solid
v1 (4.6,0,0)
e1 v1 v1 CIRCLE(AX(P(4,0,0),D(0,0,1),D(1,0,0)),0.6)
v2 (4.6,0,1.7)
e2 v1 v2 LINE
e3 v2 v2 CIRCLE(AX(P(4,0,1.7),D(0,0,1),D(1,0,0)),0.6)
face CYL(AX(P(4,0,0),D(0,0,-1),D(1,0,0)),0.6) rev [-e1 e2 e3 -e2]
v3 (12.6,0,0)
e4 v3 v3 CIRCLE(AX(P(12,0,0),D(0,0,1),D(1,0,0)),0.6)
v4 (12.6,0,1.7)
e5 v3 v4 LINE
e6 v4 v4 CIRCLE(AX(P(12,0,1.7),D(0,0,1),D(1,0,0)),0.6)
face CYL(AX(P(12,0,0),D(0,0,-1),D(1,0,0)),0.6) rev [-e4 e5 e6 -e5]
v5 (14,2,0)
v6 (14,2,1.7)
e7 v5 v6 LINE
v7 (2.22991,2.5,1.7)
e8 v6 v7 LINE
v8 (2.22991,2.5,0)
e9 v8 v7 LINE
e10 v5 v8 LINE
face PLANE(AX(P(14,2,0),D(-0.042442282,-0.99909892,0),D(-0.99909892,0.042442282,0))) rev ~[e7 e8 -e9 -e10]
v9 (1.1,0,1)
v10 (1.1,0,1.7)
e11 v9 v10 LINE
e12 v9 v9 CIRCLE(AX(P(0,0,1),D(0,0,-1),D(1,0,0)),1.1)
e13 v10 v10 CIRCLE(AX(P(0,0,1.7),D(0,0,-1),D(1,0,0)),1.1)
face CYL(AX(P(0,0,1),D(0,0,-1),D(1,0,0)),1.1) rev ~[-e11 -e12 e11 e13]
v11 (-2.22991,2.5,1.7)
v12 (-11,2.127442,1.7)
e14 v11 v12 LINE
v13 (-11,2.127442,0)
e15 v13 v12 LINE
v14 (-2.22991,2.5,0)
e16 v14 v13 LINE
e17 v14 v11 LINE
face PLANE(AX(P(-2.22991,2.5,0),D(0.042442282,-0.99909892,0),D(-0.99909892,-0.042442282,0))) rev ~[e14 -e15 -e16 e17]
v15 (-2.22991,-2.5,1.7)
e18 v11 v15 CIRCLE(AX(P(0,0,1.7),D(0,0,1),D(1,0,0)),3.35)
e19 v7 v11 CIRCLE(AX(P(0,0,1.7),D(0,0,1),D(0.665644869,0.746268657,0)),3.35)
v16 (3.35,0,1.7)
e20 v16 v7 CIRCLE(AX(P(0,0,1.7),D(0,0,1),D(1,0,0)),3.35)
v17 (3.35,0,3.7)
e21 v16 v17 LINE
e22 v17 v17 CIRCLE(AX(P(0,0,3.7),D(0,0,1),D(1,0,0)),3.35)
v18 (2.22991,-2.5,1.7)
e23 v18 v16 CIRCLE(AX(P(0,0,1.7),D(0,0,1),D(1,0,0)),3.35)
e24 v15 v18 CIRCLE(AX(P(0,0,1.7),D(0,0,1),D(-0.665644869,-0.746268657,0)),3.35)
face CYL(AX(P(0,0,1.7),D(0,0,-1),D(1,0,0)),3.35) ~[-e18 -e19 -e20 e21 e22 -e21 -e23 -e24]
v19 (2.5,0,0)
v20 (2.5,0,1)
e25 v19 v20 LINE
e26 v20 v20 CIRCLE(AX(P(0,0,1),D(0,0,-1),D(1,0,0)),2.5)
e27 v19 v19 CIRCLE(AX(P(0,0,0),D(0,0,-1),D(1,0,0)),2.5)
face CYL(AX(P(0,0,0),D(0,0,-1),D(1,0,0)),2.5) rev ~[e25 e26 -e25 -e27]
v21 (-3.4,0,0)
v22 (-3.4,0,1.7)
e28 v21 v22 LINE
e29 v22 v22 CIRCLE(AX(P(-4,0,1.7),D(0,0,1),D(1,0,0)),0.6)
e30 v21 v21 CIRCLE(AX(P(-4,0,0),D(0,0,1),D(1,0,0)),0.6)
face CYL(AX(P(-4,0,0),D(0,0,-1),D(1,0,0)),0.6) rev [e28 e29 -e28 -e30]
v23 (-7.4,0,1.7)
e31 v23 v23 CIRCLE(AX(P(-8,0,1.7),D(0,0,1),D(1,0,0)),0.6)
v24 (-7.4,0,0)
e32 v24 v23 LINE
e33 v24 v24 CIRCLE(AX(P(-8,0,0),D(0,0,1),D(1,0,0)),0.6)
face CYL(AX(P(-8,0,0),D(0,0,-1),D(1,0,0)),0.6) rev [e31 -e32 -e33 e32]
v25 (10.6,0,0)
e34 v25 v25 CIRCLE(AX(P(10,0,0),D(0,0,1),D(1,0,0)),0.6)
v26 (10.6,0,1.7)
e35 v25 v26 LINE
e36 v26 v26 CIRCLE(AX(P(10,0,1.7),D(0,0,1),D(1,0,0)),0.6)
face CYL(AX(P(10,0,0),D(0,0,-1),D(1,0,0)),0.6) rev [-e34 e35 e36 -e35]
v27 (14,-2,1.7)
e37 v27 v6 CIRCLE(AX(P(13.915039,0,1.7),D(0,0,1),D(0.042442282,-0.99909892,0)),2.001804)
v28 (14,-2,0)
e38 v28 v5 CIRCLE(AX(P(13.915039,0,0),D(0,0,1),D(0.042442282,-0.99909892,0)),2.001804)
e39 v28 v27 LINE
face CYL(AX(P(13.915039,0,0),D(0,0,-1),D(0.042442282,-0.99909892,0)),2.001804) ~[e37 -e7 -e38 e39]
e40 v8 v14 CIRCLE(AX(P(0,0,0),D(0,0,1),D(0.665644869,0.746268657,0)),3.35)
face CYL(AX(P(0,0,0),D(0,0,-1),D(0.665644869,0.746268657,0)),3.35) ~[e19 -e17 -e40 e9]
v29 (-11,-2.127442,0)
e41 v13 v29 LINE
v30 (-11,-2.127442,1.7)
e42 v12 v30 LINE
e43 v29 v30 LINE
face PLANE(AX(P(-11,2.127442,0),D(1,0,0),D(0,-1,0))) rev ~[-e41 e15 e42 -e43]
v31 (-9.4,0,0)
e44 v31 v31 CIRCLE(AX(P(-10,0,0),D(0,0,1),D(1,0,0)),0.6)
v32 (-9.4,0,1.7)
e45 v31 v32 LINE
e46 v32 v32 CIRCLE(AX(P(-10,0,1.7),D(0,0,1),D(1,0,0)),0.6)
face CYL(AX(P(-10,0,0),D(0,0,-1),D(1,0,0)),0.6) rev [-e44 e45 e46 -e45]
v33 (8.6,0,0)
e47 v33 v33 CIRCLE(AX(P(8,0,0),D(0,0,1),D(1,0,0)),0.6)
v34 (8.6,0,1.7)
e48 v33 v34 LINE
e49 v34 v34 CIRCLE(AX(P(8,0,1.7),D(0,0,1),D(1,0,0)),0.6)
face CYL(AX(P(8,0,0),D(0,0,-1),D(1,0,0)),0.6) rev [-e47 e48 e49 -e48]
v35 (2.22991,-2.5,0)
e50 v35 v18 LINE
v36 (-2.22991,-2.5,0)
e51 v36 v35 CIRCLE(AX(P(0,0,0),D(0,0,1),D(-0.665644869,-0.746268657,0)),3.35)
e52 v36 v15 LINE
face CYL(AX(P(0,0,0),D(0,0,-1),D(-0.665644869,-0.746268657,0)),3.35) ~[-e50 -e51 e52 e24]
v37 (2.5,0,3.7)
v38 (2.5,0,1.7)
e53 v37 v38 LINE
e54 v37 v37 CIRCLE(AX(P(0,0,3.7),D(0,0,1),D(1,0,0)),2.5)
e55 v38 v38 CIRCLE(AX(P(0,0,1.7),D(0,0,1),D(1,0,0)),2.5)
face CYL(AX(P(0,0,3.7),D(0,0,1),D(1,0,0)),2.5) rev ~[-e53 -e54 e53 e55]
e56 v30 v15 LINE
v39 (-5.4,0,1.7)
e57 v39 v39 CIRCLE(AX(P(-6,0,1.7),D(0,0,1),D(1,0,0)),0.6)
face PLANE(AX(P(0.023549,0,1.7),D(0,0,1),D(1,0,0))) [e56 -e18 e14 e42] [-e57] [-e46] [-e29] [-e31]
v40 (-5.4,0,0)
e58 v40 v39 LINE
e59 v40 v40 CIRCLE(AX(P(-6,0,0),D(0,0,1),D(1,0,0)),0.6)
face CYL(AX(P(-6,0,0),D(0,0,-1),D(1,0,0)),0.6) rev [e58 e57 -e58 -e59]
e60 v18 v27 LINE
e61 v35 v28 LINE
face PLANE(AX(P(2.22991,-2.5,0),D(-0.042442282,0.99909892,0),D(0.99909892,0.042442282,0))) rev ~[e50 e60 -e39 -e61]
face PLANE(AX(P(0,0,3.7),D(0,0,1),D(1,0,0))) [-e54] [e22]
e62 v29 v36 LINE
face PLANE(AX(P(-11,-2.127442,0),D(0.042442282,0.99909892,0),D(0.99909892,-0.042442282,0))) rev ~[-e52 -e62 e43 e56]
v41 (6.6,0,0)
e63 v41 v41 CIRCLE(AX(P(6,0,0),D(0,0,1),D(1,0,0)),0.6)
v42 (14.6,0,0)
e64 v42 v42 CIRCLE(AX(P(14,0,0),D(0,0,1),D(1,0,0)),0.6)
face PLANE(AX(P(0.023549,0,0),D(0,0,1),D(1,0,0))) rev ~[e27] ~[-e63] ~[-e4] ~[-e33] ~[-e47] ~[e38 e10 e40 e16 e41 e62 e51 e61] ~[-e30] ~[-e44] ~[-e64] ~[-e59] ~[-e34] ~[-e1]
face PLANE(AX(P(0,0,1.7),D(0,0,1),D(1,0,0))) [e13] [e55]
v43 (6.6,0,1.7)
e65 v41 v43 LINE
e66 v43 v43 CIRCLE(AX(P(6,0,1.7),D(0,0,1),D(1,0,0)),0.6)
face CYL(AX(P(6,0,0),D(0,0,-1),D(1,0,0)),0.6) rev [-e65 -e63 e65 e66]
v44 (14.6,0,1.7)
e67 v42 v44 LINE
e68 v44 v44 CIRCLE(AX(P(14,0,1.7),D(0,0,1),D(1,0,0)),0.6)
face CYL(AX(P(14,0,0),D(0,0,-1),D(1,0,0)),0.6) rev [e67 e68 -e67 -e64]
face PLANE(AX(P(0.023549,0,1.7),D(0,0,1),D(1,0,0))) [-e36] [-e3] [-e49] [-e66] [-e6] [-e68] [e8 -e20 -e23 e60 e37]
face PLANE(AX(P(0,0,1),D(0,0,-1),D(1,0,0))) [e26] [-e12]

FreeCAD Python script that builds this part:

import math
import FreeCAD as App
import Part
import Sketcher
from FreeCAD import Vector

doc = App.newDocument("Part")
params = doc.addObject("Spreadsheet::Sheet", "Params")
for row, (alias, value) in enumerate([
    ("sketch1_diameter", "1.2 mm"),
    ("sketch1_radius", "3.35 mm"),
    ("pad1_length", "1.7 mm"),
    ("sketch2_diameter", "6.7 mm"),
    ("pad2_length", "2 mm"),
    ("sketch3_diameter", "5 mm"),
    ("pocket1_length", "1 mm"),
    ("sketch4_diameter", "2.2 mm"),
    ("sketch5_diameter", "5 mm"),
    ("pocket3_length", "2 mm"),
], start=1):
    params.set(f"A{row}", alias)
    params.set(f"B{row}", "=" + value)
    params.setAlias(f"B{row}", alias)

body = doc.addObject("PartDesign::Body", "Body")

sketch1 = body.newObject("Sketcher::SketchObject", "Sketch")
sketch1.AttachmentSupport = (doc.getObject("XY_Plane"), [""])
sketch1.MapMode = "FlatFace"
sketch1.addGeometry(Part.ArcOfCircle(Part.Circle(Vector(0, 0, 0), Vector(0, 0, 1), 3.4), math.radians(48), math.radians(132)), False)
sketch1.addGeometry(Part.LineSegment(Vector(-2.2, 2.5, 0), Vector(-11, 2.1, 0)), False)
sketch1.addGeometry(Part.LineSegment(Vector(-11, 2.1, 0), Vector(-11, -2.1, 0)), False)
sketch1.addGeometry(Part.LineSegment(Vector(-11, -2.1, 0), Vector(-2.2, -2.5, 0)), False)
sketch1.addGeometry(Part.ArcOfCircle(Part.Circle(Vector(0, 0, 0), Vector(0, 0, 1), 3.4), math.radians(-132), math.radians(-48)), False)
sketch1.addGeometry(Part.LineSegment(Vector(2.2, -2.5, 0), Vector(14, -2, 0)), False)
sketch1.addGeometry(Part.ArcOfCircle(Part.Circle(Vector(13.9, 0, 0), Vector(0, 0, 1), 2), math.radians(-88), math.radians(88)), False)
sketch1.addGeometry(Part.LineSegment(Vector(14, 2, 0), Vector(2.2, 2.5, 0)), False)
sketch1.addGeometry(Part.Circle(Vector(-10, 0, 0), Vector(0, 0, 1), 0.6), False)
sketch1.addGeometry(Part.Circle(Vector(-8, 0, 0), Vector(0, 0, 1), 0.6), False)
sketch1.addGeometry(Part.Circle(Vector(-6, 0, 0), Vector(0, 0, 1), 0.6), False)
sketch1.addGeometry(Part.Circle(Vector(-4, 0, 0), Vector(0, 0, 1), 0.6), False)
sketch1.addGeometry(Part.Circle(Vector(4, 0, 0), Vector(0, 0, 1), 0.6), False)
sketch1.addGeometry(Part.Circle(Vector(6, 0, 0), Vector(0, 0, 1), 0.6), False)
sketch1.addGeometry(Part.Circle(Vector(8, 0, 0), Vector(0, 0, 1), 0.6), False)
sketch1.addGeometry(Part.Circle(Vector(10, 0, 0), Vector(0, 0, 1), 0.6), False)
sketch1.addGeometry(Part.Circle(Vector(12, 0, 0), Vector(0, 0, 1), 0.6), False)
sketch1.addGeometry(Part.Circle(Vector(14, 0, 0), Vector(0, 0, 1), 0.6), False)
sketch1.addConstraint(Sketcher.Constraint("Coincident", 0, 2, 1, 1))
sketch1.addConstraint(Sketcher.Constraint("Coincident", 1, 2, 2, 1))
sketch1.addConstraint(Sketcher.Constraint("Coincident", 2, 2, 3, 1))
sketch1.addConstraint(Sketcher.Constraint("Coincident", 3, 2, 4, 1))
sketch1.addConstraint(Sketcher.Constraint("Coincident", 4, 2, 5, 1))
sketch1.addConstraint(Sketcher.Constraint("Tangent", 5, 2, 6, 1))
sketch1.addConstraint(Sketcher.Constraint("Tangent", 6, 2, 7, 1))
sketch1.addConstraint(Sketcher.Constraint("Coincident", 7, 2, 0, 1))
sketch1.addConstraint(Sketcher.Constraint("Vertical", 2))
sketch1.addConstraint(Sketcher.Constraint("Coincident", 0, 3, -1, 1))
sketch1.addConstraint(Sketcher.Constraint("Coincident", 4, 3, -1, 1))
sketch1.addConstraint(Sketcher.Constraint("Equal", 0, 4))
sketch1.addConstraint(Sketcher.Constraint("Equal", 8, 9))
sketch1.addConstraint(Sketcher.Constraint("Equal", 9, 10))
sketch1.addConstraint(Sketcher.Constraint("Equal", 10, 11))
sketch1.addConstraint(Sketcher.Constraint("Equal", 11, 12))
sketch1.addConstraint(Sketcher.Constraint("Equal", 12, 13))
sketch1.addConstraint(Sketcher.Constraint("Equal", 13, 14))
sketch1.addConstraint(Sketcher.Constraint("Equal", 14, 15))
sketch1.addConstraint(Sketcher.Constraint("Equal", 15, 16))
sketch1.addConstraint(Sketcher.Constraint("Equal", 16, 17))
sketch1.addConstraint(Sketcher.Constraint("Symmetric", 11, 3, 12, 3, -1, 1))
sketch1.addConstraint(Sketcher.Constraint("Symmetric", 10, 3, 13, 3, -1, 1))
sketch1.addConstraint(Sketcher.Constraint("Symmetric", 9, 3, 14, 3, -1, 1))
sketch1.addConstraint(Sketcher.Constraint("Symmetric", 8, 3, 15, 3, -1, 1))
sketch1.addConstraint(Sketcher.Constraint("Symmetric", 5, 2, 6, 2, -1))
sketch1.addConstraint(Sketcher.Constraint("PointOnObject", 8, 3, -1))
sketch1.addConstraint(Sketcher.Constraint("PointOnObject", 9, 3, -1))
sketch1.addConstraint(Sketcher.Constraint("PointOnObject", 10, 3, -1))
sketch1.addConstraint(Sketcher.Constraint("PointOnObject", 11, 3, -1))
sketch1.addConstraint(Sketcher.Constraint("PointOnObject", 16, 3, -1))
sketch1.addConstraint(Sketcher.Constraint("PointOnObject", 17, 3, -1))
sketch1.addConstraint(Sketcher.Constraint("Parallel", 1, 5))
sketch1.addConstraint(Sketcher.Constraint("Parallel", 3, 7))
sketch1.addConstraint(Sketcher.Constraint("Horizontal", 3, 2, 4, 2))
sketch1.addConstraint(Sketcher.Constraint("Horizontal", 0, 2, 7, 2))
sketch1.addConstraint(Sketcher.Constraint("Vertical", 17, 3, 5, 2))
sketch1.addConstraint(Sketcher.Constraint("Diameter", 8, 1.2))
sketch1.addConstraint(Sketcher.Constraint("Radius", 0, 3.35))
sketch1.addConstraint(Sketcher.Constraint("DistanceX", 8, 3, -1, 1, 10.0))
sketch1.addConstraint(Sketcher.Constraint("DistanceX", 9, 3, -1, 1, 8.0))
sketch1.addConstraint(Sketcher.Constraint("DistanceX", 10, 3, -1, 1, 6.0))
sketch1.addConstraint(Sketcher.Constraint("DistanceX", 11, 3, -1, 1, 4.0))
sketch1.addConstraint(Sketcher.Constraint("DistanceX", -1, 1, 16, 3, 12.0))
sketch1.addConstraint(Sketcher.Constraint("DistanceX", -1, 1, 17, 3, 14.0))
sketch1.addConstraint(Sketcher.Constraint("DistanceX", 1, 2, -1, 1, 11.0))
sketch1.addConstraint(Sketcher.Constraint("DistanceY", 5, 2, -1, 1, 2.0))
sketch1.addConstraint(Sketcher.Constraint("DistanceY", 3, 2, 0, 2, 5.0))
sketch1.setExpression("Constraints[37]", "Params.sketch1_diameter")
sketch1.setExpression("Constraints[38]", "Params.sketch1_radius")
pad1 = body.newObject("PartDesign::Pad", "Pad")
pad1.Profile = sketch1
pad1.setExpression("Length", "Params.pad1_length")

sketch2 = body.newObject("Sketcher::SketchObject", "Sketch001")
sketch2.AttachmentSupport = (doc.getObject("XY_Plane"), [""])
sketch2.MapMode = "FlatFace"
sketch2.AttachmentOffset = App.Placement(Vector(0, 0, 1.7), App.Rotation())
sketch2.addGeometry(Part.Circle(Vector(0, 0, 0), Vector(0, 0, 1), 3.4), False)
sketch2.addConstraint(Sketcher.Constraint("Coincident", 0, 3, -1, 1))
sketch2.addConstraint(Sketcher.Constraint("Diameter", 0, 6.7))
sketch2.setExpression("Constraints[1]", "Params.sketch2_diameter")
pad2 = body.newObject("PartDesign::Pad", "Pad001")
pad2.Profile = sketch2
pad2.setExpression("Length", "Params.pad2_length")

sketch3 = body.newObject("Sketcher::SketchObject", "Sketch002")
sketch3.AttachmentSupport = (doc.getObject("XY_Plane"), [""])
sketch3.MapMode = "FlatFace"
sketch3.addGeometry(Part.Circle(Vector(0, 0, 0), Vector(0, 0, 1), 2.5), False)
sketch3.addConstraint(Sketcher.Constraint("Coincident", 0, 3, -1, 1))
sketch3.addConstraint(Sketcher.Constraint("Diameter", 0, 5.0))
sketch3.setExpression("Constraints[1]", "Params.sketch3_diameter")
pocket1 = body.newObject("PartDesign::Pocket", "Pocket")
pocket1.Profile = sketch3
pocket1.setExpression("Length", "Params.pocket1_length")
pocket1.Reversed = True

sketch4 = body.newObject("Sketcher::SketchObject", "Sketch003")
sketch4.AttachmentSupport = (doc.getObject("XY_Plane"), [""])
sketch4.MapMode = "FlatFace"
sketch4.AttachmentOffset = App.Placement(Vector(0, 0, 1), App.Rotation())
sketch4.addGeometry(Part.Circle(Vector(0, 0, 0), Vector(0, 0, 1), 1.1), False)
sketch4.addConstraint(Sketcher.Constraint("Coincident", 0, 3, -1, 1))
sketch4.addConstraint(Sketcher.Constraint("Diameter", 0, 2.2))
sketch4.setExpression("Constraints[1]", "Params.sketch4_diameter")
pocket2 = body.newObject("PartDesign::Pocket", "Pocket001")
pocket2.Profile = sketch4
pocket2.Type = "ThroughAll"
pocket2.Reversed = True

sketch5 = body.newObject("Sketcher::SketchObject", "Sketch004")
sketch5.AttachmentSupport = (doc.getObject("XY_Plane"), [""])
sketch5.MapMode = "FlatFace"
sketch5.AttachmentOffset = App.Placement(Vector(0, 0, 3.7), App.Rotation())
sketch5.addGeometry(Part.Circle(Vector(0, 0, 0), Vector(0, 0, 1), 2.5), False)
sketch5.addConstraint(Sketcher.Constraint("Coincident", 0, 3, -1, 1))
sketch5.addConstraint(Sketcher.Constraint("Diameter", 0, 5.0))
sketch5.setExpression("Constraints[1]", "Params.sketch5_diameter")
pocket3 = body.newObject("PartDesign::Pocket", "Pocket002")
pocket3.Profile = sketch5
pocket3.setExpression("Length", "Params.pocket3_length")

doc.recompute()
